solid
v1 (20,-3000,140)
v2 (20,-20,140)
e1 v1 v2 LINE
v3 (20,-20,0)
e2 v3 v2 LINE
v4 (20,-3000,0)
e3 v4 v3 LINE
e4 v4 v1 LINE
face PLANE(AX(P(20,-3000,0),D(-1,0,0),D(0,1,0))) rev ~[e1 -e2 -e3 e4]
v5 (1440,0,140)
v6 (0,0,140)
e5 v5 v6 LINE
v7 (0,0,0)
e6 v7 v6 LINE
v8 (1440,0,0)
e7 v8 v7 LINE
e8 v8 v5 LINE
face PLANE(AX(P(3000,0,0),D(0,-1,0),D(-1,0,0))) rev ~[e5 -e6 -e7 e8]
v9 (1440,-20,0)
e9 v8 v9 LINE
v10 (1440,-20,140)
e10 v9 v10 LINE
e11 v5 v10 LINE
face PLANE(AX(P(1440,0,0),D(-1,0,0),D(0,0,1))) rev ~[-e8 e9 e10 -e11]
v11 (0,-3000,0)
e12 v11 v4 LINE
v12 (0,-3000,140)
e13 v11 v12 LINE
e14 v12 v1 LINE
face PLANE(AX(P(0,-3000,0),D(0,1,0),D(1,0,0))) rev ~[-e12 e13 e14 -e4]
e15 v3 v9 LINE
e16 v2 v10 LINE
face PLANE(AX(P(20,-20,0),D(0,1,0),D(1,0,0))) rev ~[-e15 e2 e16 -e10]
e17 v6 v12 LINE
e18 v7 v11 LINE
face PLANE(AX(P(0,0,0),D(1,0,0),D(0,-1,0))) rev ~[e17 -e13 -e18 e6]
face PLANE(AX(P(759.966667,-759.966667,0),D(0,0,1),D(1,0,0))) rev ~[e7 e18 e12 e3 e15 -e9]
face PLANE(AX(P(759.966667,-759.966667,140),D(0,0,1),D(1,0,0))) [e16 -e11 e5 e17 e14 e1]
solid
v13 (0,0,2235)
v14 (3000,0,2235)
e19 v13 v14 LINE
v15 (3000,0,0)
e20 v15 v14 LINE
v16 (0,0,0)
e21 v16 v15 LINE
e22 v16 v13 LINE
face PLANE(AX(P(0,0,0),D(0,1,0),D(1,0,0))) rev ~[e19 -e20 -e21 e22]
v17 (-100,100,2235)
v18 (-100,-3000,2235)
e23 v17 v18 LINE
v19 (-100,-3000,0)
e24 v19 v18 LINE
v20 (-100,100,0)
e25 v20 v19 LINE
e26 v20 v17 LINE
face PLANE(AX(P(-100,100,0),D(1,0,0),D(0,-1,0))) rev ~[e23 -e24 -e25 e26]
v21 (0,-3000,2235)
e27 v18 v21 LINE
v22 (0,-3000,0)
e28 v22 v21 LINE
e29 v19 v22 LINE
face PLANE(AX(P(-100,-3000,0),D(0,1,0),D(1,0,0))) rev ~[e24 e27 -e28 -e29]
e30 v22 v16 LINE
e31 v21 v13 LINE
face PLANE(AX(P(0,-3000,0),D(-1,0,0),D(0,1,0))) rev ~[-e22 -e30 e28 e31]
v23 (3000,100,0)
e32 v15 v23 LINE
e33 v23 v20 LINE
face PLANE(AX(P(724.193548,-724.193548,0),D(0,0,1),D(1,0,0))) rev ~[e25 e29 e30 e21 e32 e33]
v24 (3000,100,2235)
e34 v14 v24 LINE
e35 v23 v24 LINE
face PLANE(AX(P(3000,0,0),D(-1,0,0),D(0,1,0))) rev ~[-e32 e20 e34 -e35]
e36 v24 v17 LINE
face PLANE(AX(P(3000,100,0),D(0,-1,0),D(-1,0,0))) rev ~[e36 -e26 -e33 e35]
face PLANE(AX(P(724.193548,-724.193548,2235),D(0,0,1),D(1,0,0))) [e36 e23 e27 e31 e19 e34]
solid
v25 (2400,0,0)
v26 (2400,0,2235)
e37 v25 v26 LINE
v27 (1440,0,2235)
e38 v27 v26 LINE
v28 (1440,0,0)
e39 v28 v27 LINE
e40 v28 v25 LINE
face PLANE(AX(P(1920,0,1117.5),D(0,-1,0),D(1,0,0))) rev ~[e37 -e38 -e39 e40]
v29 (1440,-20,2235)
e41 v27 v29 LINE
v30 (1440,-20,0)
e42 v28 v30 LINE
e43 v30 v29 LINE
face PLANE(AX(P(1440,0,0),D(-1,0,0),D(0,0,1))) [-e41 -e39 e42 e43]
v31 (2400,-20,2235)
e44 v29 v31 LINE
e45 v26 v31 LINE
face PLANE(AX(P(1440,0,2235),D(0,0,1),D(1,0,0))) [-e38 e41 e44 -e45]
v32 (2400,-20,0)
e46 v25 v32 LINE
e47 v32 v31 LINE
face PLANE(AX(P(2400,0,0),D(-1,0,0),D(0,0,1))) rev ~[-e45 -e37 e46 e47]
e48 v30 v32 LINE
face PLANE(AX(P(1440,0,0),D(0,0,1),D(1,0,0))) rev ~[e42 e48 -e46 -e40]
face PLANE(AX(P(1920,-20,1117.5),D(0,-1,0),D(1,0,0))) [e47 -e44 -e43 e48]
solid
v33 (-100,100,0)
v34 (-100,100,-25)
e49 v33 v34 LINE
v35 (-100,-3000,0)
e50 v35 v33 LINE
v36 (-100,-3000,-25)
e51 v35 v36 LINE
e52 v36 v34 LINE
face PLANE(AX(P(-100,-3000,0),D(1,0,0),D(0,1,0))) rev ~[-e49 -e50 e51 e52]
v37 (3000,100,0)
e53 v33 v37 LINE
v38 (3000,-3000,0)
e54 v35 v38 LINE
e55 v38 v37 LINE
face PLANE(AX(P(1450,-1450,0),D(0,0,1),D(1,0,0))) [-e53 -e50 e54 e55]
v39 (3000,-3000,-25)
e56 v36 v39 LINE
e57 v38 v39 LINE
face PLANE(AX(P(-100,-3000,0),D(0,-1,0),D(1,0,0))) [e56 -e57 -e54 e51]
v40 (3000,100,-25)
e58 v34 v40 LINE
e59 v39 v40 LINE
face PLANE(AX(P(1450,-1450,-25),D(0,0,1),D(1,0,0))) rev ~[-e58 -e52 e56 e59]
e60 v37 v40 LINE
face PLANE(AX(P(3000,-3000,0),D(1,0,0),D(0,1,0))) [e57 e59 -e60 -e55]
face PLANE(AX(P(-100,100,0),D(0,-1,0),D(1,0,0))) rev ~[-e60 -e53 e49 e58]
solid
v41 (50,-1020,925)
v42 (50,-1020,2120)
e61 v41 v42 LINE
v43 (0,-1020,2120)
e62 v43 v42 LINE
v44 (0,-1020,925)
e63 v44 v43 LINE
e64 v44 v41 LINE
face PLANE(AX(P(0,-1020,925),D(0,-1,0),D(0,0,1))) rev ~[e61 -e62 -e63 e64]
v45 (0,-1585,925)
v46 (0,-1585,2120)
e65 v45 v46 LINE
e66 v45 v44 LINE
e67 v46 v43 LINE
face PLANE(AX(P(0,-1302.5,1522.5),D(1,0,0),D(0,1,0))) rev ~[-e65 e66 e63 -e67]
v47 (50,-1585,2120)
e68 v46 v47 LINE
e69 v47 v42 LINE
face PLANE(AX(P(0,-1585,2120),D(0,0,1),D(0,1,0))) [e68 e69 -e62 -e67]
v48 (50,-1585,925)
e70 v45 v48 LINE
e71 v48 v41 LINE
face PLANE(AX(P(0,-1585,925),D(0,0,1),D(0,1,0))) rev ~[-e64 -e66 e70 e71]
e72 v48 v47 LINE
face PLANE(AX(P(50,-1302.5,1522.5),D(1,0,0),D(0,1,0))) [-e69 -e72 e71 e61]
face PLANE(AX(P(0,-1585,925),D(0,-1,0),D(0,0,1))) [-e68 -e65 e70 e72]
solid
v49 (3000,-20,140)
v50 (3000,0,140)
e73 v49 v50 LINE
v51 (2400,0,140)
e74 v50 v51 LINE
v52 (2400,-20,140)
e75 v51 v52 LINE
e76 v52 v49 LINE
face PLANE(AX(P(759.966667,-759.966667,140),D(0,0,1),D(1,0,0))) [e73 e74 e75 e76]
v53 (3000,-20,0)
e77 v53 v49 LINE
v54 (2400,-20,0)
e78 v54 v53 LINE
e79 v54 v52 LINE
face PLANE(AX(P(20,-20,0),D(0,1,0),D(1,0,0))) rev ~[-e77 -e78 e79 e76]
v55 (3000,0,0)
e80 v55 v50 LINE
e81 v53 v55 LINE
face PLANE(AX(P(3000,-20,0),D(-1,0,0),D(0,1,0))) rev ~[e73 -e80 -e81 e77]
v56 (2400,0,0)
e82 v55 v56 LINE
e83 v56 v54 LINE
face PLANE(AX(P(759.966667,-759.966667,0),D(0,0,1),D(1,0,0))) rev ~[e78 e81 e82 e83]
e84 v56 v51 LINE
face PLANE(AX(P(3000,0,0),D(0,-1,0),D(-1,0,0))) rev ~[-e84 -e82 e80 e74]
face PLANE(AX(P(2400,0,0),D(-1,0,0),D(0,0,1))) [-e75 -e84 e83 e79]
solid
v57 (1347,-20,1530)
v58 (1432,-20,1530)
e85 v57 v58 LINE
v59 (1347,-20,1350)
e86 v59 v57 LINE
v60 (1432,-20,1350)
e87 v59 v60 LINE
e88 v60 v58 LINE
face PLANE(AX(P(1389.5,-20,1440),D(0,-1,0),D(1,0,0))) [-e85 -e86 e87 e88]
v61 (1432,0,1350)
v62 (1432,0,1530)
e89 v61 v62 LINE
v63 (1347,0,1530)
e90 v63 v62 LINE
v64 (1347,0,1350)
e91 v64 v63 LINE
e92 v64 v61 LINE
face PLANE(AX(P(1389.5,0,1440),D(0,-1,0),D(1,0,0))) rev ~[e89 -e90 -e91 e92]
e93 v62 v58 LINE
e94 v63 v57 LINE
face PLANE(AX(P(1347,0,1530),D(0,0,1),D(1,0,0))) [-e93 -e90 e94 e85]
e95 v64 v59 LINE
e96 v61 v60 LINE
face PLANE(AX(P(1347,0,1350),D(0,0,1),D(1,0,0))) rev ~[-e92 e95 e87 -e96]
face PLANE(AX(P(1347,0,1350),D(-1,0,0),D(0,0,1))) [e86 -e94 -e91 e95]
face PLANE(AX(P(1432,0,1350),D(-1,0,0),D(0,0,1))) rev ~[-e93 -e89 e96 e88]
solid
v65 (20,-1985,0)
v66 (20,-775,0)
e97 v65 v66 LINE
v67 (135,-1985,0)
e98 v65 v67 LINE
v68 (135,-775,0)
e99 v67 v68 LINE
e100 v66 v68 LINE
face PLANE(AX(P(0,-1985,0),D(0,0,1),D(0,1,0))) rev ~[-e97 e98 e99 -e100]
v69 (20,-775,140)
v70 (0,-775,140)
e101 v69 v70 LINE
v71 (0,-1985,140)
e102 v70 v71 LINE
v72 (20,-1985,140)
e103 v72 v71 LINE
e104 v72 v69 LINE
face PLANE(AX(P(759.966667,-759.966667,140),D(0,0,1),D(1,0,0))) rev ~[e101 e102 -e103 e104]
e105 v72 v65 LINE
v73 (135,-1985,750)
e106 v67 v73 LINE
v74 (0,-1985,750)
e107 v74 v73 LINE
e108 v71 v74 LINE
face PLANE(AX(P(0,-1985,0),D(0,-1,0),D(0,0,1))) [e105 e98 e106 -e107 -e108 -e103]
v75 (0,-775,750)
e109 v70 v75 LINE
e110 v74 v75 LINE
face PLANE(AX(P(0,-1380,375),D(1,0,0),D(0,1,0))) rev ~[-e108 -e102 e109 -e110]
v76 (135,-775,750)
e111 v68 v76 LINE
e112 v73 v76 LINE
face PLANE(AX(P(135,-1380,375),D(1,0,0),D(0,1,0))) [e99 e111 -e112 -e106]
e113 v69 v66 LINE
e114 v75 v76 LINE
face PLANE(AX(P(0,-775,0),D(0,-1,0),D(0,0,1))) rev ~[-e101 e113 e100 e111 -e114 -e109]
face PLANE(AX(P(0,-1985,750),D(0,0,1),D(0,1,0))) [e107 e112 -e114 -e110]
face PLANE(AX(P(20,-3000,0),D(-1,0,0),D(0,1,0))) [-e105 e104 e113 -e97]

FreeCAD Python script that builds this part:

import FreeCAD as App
import Part
import Sketcher
from FreeCAD import Vector

doc = App.newDocument("Part")
params = doc.addObject("Spreadsheet::Sheet", "Params")
for row, (alias, value) in enumerate([
    ("sketch1_width", "100 mm"),
    ("sketch1_width2", "3000 mm"),
    ("pad1_length", "2235 mm"),
    ("sketch2_width", "960 mm"),
    ("sketch2_height", "2235 mm"),
    ("pad2_length", "20 mm"),
    ("sketch3_width", "1210 mm"),
    ("sketch3_height", "750 mm"),
    ("pad3_length", "135 mm"),
    ("sketch4_width", "565 mm"),
    ("sketch4_height", "1195 mm"),
    ("pad4_length", "50 mm"),
    ("sketch5_width", "3000 mm"),
    ("sketch5_width2", "20 mm"),
    ("pad5_length", "140 mm"),
    ("sketch6_width", "85 mm"),
    ("sketch6_height", "180 mm"),
    ("pad6_length", "20 mm"),
    ("sketch7_width", "3100 mm"),
    ("pad7_length", "25 mm"),
], start=1):
    params.set(f"A{row}", alias)
    params.set(f"B{row}", "=" + value)
    params.setAlias(f"B{row}", alias)

body = doc.addObject("PartDesign::Body", "Body")

sketch1 = body.newObject("Sketcher::SketchObject", "Sketch")
sketch1.AttachmentSupport = (doc.getObject("XY_Plane"), [""])
sketch1.MapMode = "FlatFace"
sketch1.addGeometry([
    Part.LineSegment(Vector(-100, -3000, 0), Vector(0, -3000, 0)),
    Part.LineSegment(Vector(0, -3000, 0), Vector(0, 0, 0)),
    Part.LineSegment(Vector(0, 0, 0), Vector(3000, 0, 0)),
    Part.LineSegment(Vector(3000, 0, 0), Vector(3000, 100, 0)),
    Part.LineSegment(Vector(3000, 100, 0), Vector(-100, 100, 0)),
    Part.LineSegment(Vector(-100, 100, 0), Vector(-100, -3000, 0)),
], False)
sketch1.addConstraint([
    Sketcher.Constraint("Coincident", 0, 2, 1, 1),
    Sketcher.Constraint("Coincident", 1, 2, 2, 1),
    Sketcher.Constraint("Coincident", 2, 2, 3, 1),
    Sketcher.Constraint("Coincident", 3, 2, 4, 1),
    Sketcher.Constraint("Coincident", 4, 2, 5, 1),
    Sketcher.Constraint("Coincident", 5, 2, 0, 1),
    Sketcher.Constraint("Horizontal", 0),
    Sketcher.Constraint("Vertical", 1),
    Sketcher.Constraint("Horizontal", 2),
    Sketcher.Constraint("Vertical", 3),
    Sketcher.Constraint("Horizontal", 4),
    Sketcher.Constraint("Vertical", 5),
    Sketcher.Constraint("Coincident", 1, 2, -1, 1),
    Sketcher.Constraint("Equal", 2, 1),
    Sketcher.Constraint("Equal", 0, 3),
    Sketcher.Constraint("DistanceX", 0, 1, 0, 2, 100.0),
    Sketcher.Constraint("DistanceX", 2, 1, 2, 2, 3000.0),
])
sketch1.setExpression("Constraints[15]", "Params.sketch1_width")
sketch1.setExpression("Constraints[16]", "Params.sketch1_width2")
pad1 = body.newObject("PartDesign::Pad", "Pad")
pad1.Profile = sketch1
pad1.setExpression("Length", "Params.pad1_length")
body2 = doc.addObject("PartDesign::Body", "Body001")

sketch2 = body2.newObject("Sketcher::SketchObject", "Sketch001")
sketch2.AttachmentSupport = (doc.getObject("XZ_Plane001"), [""])
sketch2.MapMode = "FlatFace"
sketch2.addGeometry([
    Part.LineSegment(Vector(1440, 2235, 0), Vector(1440, 0, 0)),
    Part.LineSegment(Vector(1440, 0, 0), Vector(2400, 0, 0)),
    Part.LineSegment(Vector(2400, 0, 0), Vector(2400, 2235, 0)),
    Part.LineSegment(Vector(2400, 2235, 0), Vector(1440, 2235, 0)),
], False)
sketch2.addConstraint([
    Sketcher.Constraint("Coincident", 0, 2, 1, 1),
    Sketcher.Constraint("Coincident", 1, 2, 2, 1),
    Sketcher.Constraint("Coincident", 2, 2, 3, 1),
    Sketcher.Constraint("Coincident", 3, 2, 0, 1),
    Sketcher.Constraint("Vertical", 0),
    Sketcher.Constraint("Horizontal", 1),
    Sketcher.Constraint("Vertical", 2),
    Sketcher.Constraint("Horizontal", 3),
    Sketcher.Constraint("PointOnObject", 0, 2, -1),
    Sketcher.Constraint("DistanceX", 1, 1, 1, 2, 960.0),
    Sketcher.Constraint("DistanceY", 0, 2, 0, 1, 2235.0),
    Sketcher.Constraint("DistanceX", -1, 1, 0, 2, 1440.0),
])
sketch2.setExpression("Constraints[9]", "Params.sketch2_width")
sketch2.setExpression("Constraints[10]", "Params.sketch2_height")
pad2 = body2.newObject("PartDesign::Pad", "Pad001")
pad2.Profile = sketch2
pad2.setExpression("Length", "Params.pad2_length")
body3 = doc.addObject("PartDesign::Body", "Body002")

sketch3 = body3.newObject("Sketcher::SketchObject", "Sketch002")
sketch3.AttachmentSupport = (doc.getObject("YZ_Plane002"), [""])
sketch3.MapMode = "FlatFace"
sketch3.addGeometry([
    Part.LineSegment(Vector(-1985, 750, 0), Vector(-1985, 0, 0)),
    Part.LineSegment(Vector(-1985, 0, 0), Vector(-775, 0, 0)),
    Part.LineSegment(Vector(-775, 0, 0), Vector(-775, 750, 0)),
    Part.LineSegment(Vector(-775, 750, 0), Vector(-1985, 750, 0)),
], False)
sketch3.addConstraint([
    Sketcher.Constraint("Coincident", 0, 2, 1, 1),
    Sketcher.Constraint("Coincident", 1, 2, 2, 1),
    Sketcher.Constraint("Coincident", 2, 2, 3, 1),
    Sketcher.Constraint("Coincident", 3, 2, 0, 1),
    Sketcher.Constraint("Vertical", 0),
    Sketcher.Constraint("Horizontal", 1),
    Sketcher.Constraint("Vertical", 2),
    Sketcher.Constraint("Horizontal", 3),
    Sketcher.Constraint("PointOnObject", 0, 2, -1),
    Sketcher.Constraint("DistanceX", 1, 1, 1, 2, 1210.0),
    Sketcher.Constraint("DistanceY", 0, 2, 0, 1, 750.0),
    Sketcher.Constraint("DistanceX", 0, 2, -1, 1, 1985.0),
])
sketch3.setExpression("Constraints[9]", "Params.sketch3_width")
sketch3.setExpression("Constraints[10]", "Params.sketch3_height")
pad3 = body3.newObject("PartDesign::Pad", "Pad002")
pad3.Profile = sketch3
pad3.setExpression("Length", "Params.pad3_length")
body4 = doc.addObject("PartDesign::Body", "Body003")

sketch4 = body4.newObject("Sketcher::SketchObject", "Sketch003")
sketch4.AttachmentSupport = (doc.getObject("YZ_Plane003"), [""])
sketch4.MapMode = "FlatFace"
sketch4.addGeometry([
    Part.LineSegment(Vector(-1585, 2120, 0), Vector(-1585, 925, 0)),
    Part.LineSegment(Vector(-1585, 925, 0), Vector(-1020, 925, 0)),
    Part.LineSegment(Vector(-1020, 925, 0), Vector(-1020, 2120, 0)),
    Part.LineSegment(Vector(-1020, 2120, 0), Vector(-1585, 2120, 0)),
], False)
sketch4.addConstraint([
    Sketcher.Constraint("Coincident", 0, 2, 1, 1),
    Sketcher.Constraint("Coincident", 1, 2, 2, 1),
    Sketcher.Constraint("Coincident", 2, 2, 3, 1),
    Sketcher.Constraint("Coincident", 3, 2, 0, 1),
    Sketcher.Constraint("Vertical", 0),
    Sketcher.Constraint("Horizontal", 1),
    Sketcher.Constraint("Vertical", 2),
    Sketcher.Constraint("Horizontal", 3),
    Sketcher.Constraint("DistanceX", 1, 1, 1, 2, 565.0),
    Sketcher.Constraint("DistanceY", 0, 2, 0, 1, 1195.0),
    Sketcher.Constraint("DistanceX", 0, 2, -1, 1, 1585.0),
    Sketcher.Constraint("DistanceY", -1, 1, 0, 2, 925.0),
])
sketch4.setExpression("Constraints[8]", "Params.sketch4_width")
sketch4.setExpression("Constraints[9]", "Params.sketch4_height")
pad4 = body4.newObject("PartDesign::Pad", "Pad003")
pad4.Profile = sketch4
pad4.setExpression("Length", "Params.pad4_length")
body5 = doc.addObject("PartDesign::Body", "Body004")
body5.AllowCompound = True

sketch5 = body5.newObject("Sketcher::SketchObject", "Sketch004")
sketch5.AttachmentSupport = (doc.getObject("XY_Plane004"), [""])
sketch5.MapMode = "FlatFace"
sketch5.addGeometry([
    Part.LineSegment(Vector(3000, -20, 0), Vector(3000, 0, 0)),
    Part.LineSegment(Vector(3000, 0, 0), Vector(0, 0, 0)),
    Part.LineSegment(Vector(0, 0, 0), Vector(0, -3000, 0)),
    Part.LineSegment(Vector(0, -3000, 0), Vector(20, -3000, 0)),
    Part.LineSegment(Vector(20, -3000, 0), Vector(20, -20, 0)),
    Part.LineSegment(Vector(20, -20, 0), Vector(3000, -20, 0)),
], False)
sketch5.addConstraint([
    Sketcher.Constraint("Coincident", 0, 2, 1, 1),
    Sketcher.Constraint("Coincident", 1, 2, 2, 1),
    Sketcher.Constraint("Coincident", 2, 2, 3, 1),
    Sketcher.Constraint("Coincident", 3, 2, 4, 1),
    Sketcher.Constraint("Coincident", 4, 2, 5, 1),
    Sketcher.Constraint("Coincident", 5, 2, 0, 1),
    Sketcher.Constraint("Vertical", 0),
    Sketcher.Constraint("Horizontal", 1),
    Sketcher.Constraint("Vertical", 2),
    Sketcher.Constraint("Horizontal", 3),
    Sketcher.Constraint("Vertical", 4),
    Sketcher.Constraint("Horizontal", 5),
    Sketcher.Constraint("Coincident", 1, 2, -1, 1),
    Sketcher.Constraint("Equal", 3, 0),
    Sketcher.Constraint("Equal", 1, 2),
    Sketcher.Constraint("DistanceX", 1, 2, 1, 1, 3000.0),
    Sketcher.Constraint("DistanceX", 3, 1, 3, 2, 20.0),
])
sketch5.setExpression("Constraints[15]", "Params.sketch5_width")
sketch5.setExpression("Constraints[16]", "Params.sketch5_width2")
pad5 = body5.newObject("PartDesign::Pad", "Pad004")
pad5.Profile = sketch5
pad5.setExpression("Length", "Params.pad5_length")
doc.recompute()

body6 = doc.addObject("PartDesign::Body", "Body005")
body6.BaseFeature = body2
boolean = body5.newObject("PartDesign::Boolean", "Boolean")
boolean.Type = "Cut"
boolean.addObjects([body6])
doc.recompute()

body7 = doc.addObject("PartDesign::Body", "Body006")
body7.BaseFeature = body5
boolean2 = body3.newObject("PartDesign::Boolean", "Boolean001")
boolean2.Type = "Cut"
boolean2.addObjects([body7])
doc.recompute()
body8 = doc.addObject("PartDesign::Body", "Body007")

sketch6 = body8.newObject("Sketcher::SketchObject", "Sketch005")
sketch6.AttachmentSupport = (doc.getObject("XZ_Plane007"), [""])
sketch6.MapMode = "FlatFace"
sketch6.addGeometry([
    Part.LineSegment(Vector(1347, 1530, 0), Vector(1347, 1350, 0)),
    Part.LineSegment(Vector(1347, 1350, 0), Vector(1432, 1350, 0)),
    Part.LineSegment(Vector(1432, 1350, 0), Vector(1432, 1530, 0)),
    Part.LineSegment(Vector(1432, 1530, 0), Vector(1347, 1530, 0)),
], False)
sketch6.addConstraint([
    Sketcher.Constraint("Coincident", 0, 2, 1, 1),
    Sketcher.Constraint("Coincident", 1, 2, 2, 1),
    Sketcher.Constraint("Coincident", 2, 2, 3, 1),
    Sketcher.Constraint("Coincident", 3, 2, 0, 1),
    Sketcher.Constraint("Vertical", 0),
    Sketcher.Constraint("Horizontal", 1),
    Sketcher.Constraint("Vertical", 2),
    Sketcher.Constraint("Horizontal", 3),
    Sketcher.Constraint("DistanceX", 1, 1, 1, 2, 85.0),
    Sketcher.Constraint("DistanceY", 0, 2, 0, 1, 180.0),
    Sketcher.Constraint("DistanceX", -1, 1, 0, 2, 1347.0),
    Sketcher.Constraint("DistanceY", -1, 1, 0, 2, 1350.0),
])
sketch6.setExpression("Constraints[8]", "Params.sketch6_width")
sketch6.setExpression("Constraints[9]", "Params.sketch6_height")
pad6 = body8.newObject("PartDesign::Pad", "Pad005")
pad6.Profile = sketch6
pad6.setExpression("Length", "Params.pad6_length")
body9 = doc.addObject("PartDesign::Body", "Body008")

sketch7 = body9.newObject("Sketcher::SketchObject", "Sketch006")
sketch7.AttachmentSupport = (doc.getObject("XY_Plane008"), [""])
sketch7.MapMode = "FlatFace"
sketch7.addGeometry([
    Part.LineSegment(Vector(-100, 100, 0), Vector(-100, -3000, 0)),
    Part.LineSegment(Vector(-100, -3000, 0), Vector(3000, -3000, 0)),
    Part.LineSegment(Vector(3000, -3000, 0), Vector(3000, 100, 0)),
    Part.LineSegment(Vector(3000, 100, 0), Vector(-100, 100, 0)),
], False)
sketch7.addConstraint([
    Sketcher.Constraint("Coincident", 0, 2, 1, 1),
    Sketcher.Constraint("Coincident", 1, 2, 2, 1),
    Sketcher.Constraint("Coincident", 2, 2, 3, 1),
    Sketcher.Constraint("Coincident", 3, 2, 0, 1),
    Sketcher.Constraint("Vertical", 0),
    Sketcher.Constraint("Horizontal", 1),
    Sketcher.Constraint("Vertical", 2),
    Sketcher.Constraint("Horizontal", 3),
    Sketcher.Constraint("Equal", 3, 0),
    Sketcher.Constraint("DistanceX", 1, 1, 1, 2, 3100.0),
    Sketcher.Constraint("DistanceX", 0, 2, -1, 1, 100.0),
    Sketcher.Constraint("DistanceY", 0, 2, -1, 1, 3000.0),
])
sketch7.setExpression("Constraints[9]", "Params.sketch7_width")
pad7 = body9.newObject("PartDesign::Pad", "Pad006")
pad7.Profile = sketch7
pad7.setExpression("Length", "Params.pad7_length")
pad7.Reversed = True

doc.recompute()
